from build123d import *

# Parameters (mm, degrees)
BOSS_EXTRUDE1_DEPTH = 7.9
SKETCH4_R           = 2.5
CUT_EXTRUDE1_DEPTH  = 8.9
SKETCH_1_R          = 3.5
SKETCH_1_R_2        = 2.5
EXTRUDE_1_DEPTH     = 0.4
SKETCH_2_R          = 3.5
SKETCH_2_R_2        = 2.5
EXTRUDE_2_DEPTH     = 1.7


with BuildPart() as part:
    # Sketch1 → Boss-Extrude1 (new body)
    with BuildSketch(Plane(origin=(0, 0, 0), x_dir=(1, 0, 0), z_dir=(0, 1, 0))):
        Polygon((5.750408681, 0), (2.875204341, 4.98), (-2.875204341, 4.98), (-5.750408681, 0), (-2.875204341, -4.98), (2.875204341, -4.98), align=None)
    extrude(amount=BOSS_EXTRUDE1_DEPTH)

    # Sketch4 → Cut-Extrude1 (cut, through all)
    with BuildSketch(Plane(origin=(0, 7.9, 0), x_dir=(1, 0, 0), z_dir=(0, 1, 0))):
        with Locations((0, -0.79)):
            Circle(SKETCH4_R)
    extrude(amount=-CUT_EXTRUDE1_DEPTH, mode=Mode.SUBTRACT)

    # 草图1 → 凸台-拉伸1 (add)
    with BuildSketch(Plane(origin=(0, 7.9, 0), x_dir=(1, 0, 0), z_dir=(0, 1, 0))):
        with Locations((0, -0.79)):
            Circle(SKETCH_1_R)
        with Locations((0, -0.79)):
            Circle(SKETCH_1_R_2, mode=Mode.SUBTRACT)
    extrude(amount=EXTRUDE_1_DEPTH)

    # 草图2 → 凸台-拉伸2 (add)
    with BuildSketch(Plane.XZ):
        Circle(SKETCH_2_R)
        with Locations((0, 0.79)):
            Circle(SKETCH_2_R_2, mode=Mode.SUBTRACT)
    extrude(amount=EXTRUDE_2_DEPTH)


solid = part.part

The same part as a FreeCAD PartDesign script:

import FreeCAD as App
import Part
import Sketcher

V = App.Vector
Q = App.Units.Quantity


def add_polygon(sketch, points):
    """Adds a closed chain of lines whose ends are joined by coincident constraints."""
    first, n = sketch.GeometryCount, len(points)
    for a, b in zip(points, points[1:] + points[:1]):
        sketch.addGeometry(Part.LineSegment(App.Vector(*a, 0), App.Vector(*b, 0)), False)
    for i in range(n):
        sketch.addConstraint(Sketcher.Constraint("Coincident", first + i, 2, first + (i + 1) % n, 1))

doc = App.newDocument("Part")
body = doc.addObject("PartDesign::Body", "Body")

# Sketch on XZ plane
sketch1 = doc.addObject("Sketcher::SketchObject", "Sketch")
body.addObject(sketch1)
sketch1.AttachmentSupport = (doc.XZ_Plane, [""])
sketch1.MapMode = "FlatFace"
add_polygon(sketch1, [(6, 0), (3, -5), (-3, -5), (-6, 0), (-3, 5), (3, 5)])  # lines 0-5
sketch1.addConstraint(Sketcher.Constraint("Horizontal", 1))
sketch1.addConstraint(Sketcher.Constraint("Horizontal", 4))
sketch1.addConstraint(Sketcher.Constraint("Symmetric", 0, 2, 3, 2, -1, 1))
sketch1.addConstraint(Sketcher.Constraint("Symmetric", 2, 2, 5, 2, -1, 1))
sketch1.addConstraint(Sketcher.Constraint("PointOnObject", 2, 2, -1))
sketch1.addConstraint(Sketcher.Constraint("Parallel", 2, 5))
sketch1.addConstraint(Sketcher.Constraint("Vertical", 1, 2, 3, 2))
sketch1.addConstraint(Sketcher.Constraint("Angle", 0, Q("-120 deg")))
sketch1.addConstraint(Sketcher.Constraint("DistanceY", 0, 2, -1, 1, Q("4.98 mm")))
sketch1.addConstraint(Sketcher.Constraint("DistanceX", 1, 2, 1, 1, Q("5.750409 mm")))
pad1 = doc.addObject("PartDesign::Pad", "Pad")
body.addObject(pad1)
pad1.Profile = sketch1
pad1.Length = 7.9
pad1.Reversed = True

# Sketch on XZ plane
sketch2 = doc.addObject("Sketcher::SketchObject", "Sketch001")
body.addObject(sketch2)
sketch2.AttachmentSupport = (doc.XZ_Plane, [""])
sketch2.MapMode = "FlatFace"
sketch2.AttachmentOffset = App.Placement(V(0, 0, -7.9), App.Rotation())
sketch2.addGeometry(Part.Circle(V(0, 0.8, 0), V(0, 0, 1), 2.5), False)
sketch2.addConstraint(Sketcher.Constraint("PointOnObject", 0, 3, -2))
sketch2.addConstraint(Sketcher.Constraint("Diameter", 0, Q("5 mm")))
sketch2.addConstraint(Sketcher.Constraint("DistanceY", -1, 1, 0, 3, Q("0.79 mm")))
pocket1 = doc.addObject("PartDesign::Pocket", "Pocket")
body.addObject(pocket1)
pocket1.Profile = sketch2
pocket1.Type = "ThroughAll"
pocket1.Reversed = True

# Sketch on XZ plane
sketch3 = doc.addObject("Sketcher::SketchObject", "Sketch002")
body.addObject(sketch3)
sketch3.AttachmentSupport = (doc.XZ_Plane, [""])
sketch3.MapMode = "FlatFace"
sketch3.AttachmentOffset = App.Placement(V(0, 0, -7.9), App.Rotation())
sketch3.addGeometry(Part.Circle(V(0, 0.8, 0), V(0, 0, 1), 3.5), False)
sketch3.addGeometry(Part.Circle(V(0, 0.8, 0), V(0, 0, 1), 2.5), False)
sketch3.addConstraint(Sketcher.Constraint("Coincident", 1, 3, 0, 3))
sketch3.addConstraint(Sketcher.Constraint("PointOnObject", 0, 3, -2))
sketch3.addConstraint(Sketcher.Constraint("Diameter", 0, Q("7 mm")))
sketch3.addConstraint(Sketcher.Constraint("Diameter", 1, Q("5 mm")))
sketch3.addConstraint(Sketcher.Constraint("DistanceY", -1, 1, 0, 3, Q("0.79 mm")))
pad2 = doc.addObject("PartDesign::Pad", "Pad001")
body.addObject(pad2)
pad2.Profile = sketch3
pad2.Length = 0.4
pad2.Reversed = True

# Sketch on XZ plane
sketch4 = doc.addObject("Sketcher::SketchObject", "Sketch003")
body.addObject(sketch4)
sketch4.AttachmentSupport = (doc.XZ_Plane, [""])
sketch4.MapMode = "FlatFace"
sketch4.addGeometry(Part.Circle(V(0, 0, 0), V(0, 0, 1), 3.5), False)
sketch4.addGeometry(Part.Circle(V(0, 0.8, 0), V(0, 0, 1), 2.5), False)
sketch4.addConstraint(Sketcher.Constraint("Coincident", 0, 3, -1, 1))
sketch4.addConstraint(Sketcher.Constraint("PointOnObject", 1, 3, -2))
sketch4.addConstraint(Sketcher.Constraint("Diameter", 0, Q("7 mm")))
sketch4.addConstraint(Sketcher.Constraint("Diameter", 1, Q("5 mm")))
sketch4.addConstraint(Sketcher.Constraint("DistanceY", -1, 1, 1, 3, Q("0.79 mm")))
pad3 = doc.addObject("PartDesign::Pad", "Pad002")
body.addObject(pad3)
pad3.Profile = sketch4
pad3.Length = 1.7

doc.recompute()
